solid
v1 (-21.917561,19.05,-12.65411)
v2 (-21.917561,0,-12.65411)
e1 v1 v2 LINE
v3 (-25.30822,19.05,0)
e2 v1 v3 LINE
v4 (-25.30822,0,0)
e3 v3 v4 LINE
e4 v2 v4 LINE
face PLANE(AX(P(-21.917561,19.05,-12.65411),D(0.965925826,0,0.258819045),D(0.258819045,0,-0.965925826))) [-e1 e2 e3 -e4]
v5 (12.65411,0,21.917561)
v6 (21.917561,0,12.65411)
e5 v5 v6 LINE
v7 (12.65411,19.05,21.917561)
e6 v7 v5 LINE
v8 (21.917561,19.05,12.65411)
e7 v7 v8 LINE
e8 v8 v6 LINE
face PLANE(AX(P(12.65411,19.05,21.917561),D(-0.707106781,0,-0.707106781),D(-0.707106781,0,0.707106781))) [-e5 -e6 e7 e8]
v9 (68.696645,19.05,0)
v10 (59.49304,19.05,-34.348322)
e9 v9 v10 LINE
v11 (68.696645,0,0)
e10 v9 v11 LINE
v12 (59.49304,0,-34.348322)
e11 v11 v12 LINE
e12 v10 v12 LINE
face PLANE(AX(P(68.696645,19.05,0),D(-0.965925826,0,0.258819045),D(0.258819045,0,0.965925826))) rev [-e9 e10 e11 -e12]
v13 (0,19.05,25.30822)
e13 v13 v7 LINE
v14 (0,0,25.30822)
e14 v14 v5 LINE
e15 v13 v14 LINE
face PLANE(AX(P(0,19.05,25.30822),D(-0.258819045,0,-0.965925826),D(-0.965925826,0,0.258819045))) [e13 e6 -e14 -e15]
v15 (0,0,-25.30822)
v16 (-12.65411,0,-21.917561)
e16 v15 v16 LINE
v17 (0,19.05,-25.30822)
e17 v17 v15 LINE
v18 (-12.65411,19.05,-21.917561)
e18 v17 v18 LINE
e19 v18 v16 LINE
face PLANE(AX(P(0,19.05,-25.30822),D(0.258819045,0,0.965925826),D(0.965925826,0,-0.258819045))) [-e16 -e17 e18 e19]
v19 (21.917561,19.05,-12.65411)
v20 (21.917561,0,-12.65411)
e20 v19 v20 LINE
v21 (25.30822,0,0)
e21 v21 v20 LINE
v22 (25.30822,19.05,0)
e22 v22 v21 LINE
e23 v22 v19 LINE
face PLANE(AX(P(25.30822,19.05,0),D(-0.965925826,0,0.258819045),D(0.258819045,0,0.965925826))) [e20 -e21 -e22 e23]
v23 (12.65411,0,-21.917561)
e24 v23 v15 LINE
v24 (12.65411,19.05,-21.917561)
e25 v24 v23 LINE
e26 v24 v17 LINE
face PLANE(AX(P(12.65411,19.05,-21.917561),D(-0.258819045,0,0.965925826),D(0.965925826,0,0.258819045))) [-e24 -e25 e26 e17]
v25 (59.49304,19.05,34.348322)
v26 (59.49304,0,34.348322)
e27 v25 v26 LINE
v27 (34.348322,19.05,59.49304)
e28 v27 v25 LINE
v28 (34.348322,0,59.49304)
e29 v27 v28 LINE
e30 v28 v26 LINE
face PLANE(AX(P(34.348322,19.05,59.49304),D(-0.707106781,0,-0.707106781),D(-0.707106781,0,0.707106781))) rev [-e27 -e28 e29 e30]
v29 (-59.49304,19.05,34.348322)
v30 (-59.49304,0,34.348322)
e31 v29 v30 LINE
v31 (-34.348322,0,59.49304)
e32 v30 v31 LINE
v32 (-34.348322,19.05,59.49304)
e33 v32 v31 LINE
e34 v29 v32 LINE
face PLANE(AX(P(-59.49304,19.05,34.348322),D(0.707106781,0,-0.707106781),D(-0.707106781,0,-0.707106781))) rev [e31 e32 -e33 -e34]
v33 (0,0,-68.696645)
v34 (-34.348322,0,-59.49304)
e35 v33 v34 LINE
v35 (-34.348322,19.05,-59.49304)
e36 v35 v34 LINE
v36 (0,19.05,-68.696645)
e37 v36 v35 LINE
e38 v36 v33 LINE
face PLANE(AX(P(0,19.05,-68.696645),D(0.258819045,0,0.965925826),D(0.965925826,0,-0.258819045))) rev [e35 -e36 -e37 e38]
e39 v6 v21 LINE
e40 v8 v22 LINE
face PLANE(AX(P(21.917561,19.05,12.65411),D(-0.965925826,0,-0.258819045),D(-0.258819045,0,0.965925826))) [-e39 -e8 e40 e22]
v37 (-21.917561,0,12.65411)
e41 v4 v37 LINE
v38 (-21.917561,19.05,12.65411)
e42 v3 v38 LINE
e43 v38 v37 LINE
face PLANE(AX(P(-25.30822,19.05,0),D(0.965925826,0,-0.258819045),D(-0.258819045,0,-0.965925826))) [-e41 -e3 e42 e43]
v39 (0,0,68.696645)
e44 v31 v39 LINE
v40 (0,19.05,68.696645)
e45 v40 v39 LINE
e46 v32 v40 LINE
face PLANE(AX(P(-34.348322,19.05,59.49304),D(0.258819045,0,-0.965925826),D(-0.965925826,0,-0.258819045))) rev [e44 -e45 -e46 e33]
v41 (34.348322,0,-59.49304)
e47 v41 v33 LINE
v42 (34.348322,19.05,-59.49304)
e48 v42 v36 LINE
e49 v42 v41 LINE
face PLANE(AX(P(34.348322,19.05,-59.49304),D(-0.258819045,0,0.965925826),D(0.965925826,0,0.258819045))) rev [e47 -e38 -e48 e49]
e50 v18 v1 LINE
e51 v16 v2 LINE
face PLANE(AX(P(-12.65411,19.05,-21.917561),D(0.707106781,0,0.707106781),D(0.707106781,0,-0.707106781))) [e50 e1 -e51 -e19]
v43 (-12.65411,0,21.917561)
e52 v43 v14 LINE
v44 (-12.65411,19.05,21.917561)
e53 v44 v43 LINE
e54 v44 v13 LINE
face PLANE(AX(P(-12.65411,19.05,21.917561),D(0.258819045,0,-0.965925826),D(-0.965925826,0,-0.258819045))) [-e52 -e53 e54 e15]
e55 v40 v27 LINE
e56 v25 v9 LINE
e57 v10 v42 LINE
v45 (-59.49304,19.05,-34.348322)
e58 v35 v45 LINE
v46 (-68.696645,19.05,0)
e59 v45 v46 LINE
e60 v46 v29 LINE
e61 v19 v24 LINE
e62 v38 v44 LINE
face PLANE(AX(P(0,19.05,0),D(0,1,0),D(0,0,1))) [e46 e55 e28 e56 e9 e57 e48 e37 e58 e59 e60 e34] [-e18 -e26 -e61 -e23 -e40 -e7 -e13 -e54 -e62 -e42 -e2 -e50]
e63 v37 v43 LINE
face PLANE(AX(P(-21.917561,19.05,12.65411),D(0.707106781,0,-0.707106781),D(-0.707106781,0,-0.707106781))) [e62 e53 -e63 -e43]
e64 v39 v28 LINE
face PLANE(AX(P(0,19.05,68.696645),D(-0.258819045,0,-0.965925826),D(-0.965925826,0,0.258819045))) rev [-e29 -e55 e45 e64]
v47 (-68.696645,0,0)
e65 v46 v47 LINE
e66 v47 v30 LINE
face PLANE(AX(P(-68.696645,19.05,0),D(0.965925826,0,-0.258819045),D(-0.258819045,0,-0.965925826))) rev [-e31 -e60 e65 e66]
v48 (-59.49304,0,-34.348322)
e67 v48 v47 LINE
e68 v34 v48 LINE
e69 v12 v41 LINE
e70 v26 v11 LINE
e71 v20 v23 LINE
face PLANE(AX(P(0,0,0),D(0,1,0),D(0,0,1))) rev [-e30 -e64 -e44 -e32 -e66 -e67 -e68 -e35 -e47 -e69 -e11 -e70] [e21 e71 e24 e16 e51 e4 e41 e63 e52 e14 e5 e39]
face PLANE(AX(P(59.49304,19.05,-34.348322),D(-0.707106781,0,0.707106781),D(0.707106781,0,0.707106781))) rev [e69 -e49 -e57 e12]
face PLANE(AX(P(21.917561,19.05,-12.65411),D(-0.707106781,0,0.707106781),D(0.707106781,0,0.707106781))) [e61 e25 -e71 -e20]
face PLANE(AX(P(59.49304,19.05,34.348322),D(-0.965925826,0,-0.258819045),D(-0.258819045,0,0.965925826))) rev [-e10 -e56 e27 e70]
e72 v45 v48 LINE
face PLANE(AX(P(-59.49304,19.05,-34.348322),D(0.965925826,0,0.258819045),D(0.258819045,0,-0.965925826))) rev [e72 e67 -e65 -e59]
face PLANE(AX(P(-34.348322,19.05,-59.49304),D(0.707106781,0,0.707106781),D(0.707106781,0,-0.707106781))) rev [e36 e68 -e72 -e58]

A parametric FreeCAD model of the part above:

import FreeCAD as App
import Part
import Sketcher

V = App.Vector
Q = App.Units.Quantity

doc = App.newDocument("Part")
body = doc.addObject("PartDesign::Body", "Body")

sketch1 = doc.addObject("Sketcher::SketchObject", "Sketch")
body.addObject(sketch1)
sketch1.AttachmentSupport = (doc.XZ_Plane, [""])
sketch1.MapMode = "FlatFace"
sketch1.addGeometry([
    Part.LineSegment(V(69, 0, 0), V(59, -34, 0)),
    Part.LineSegment(V(59, -34, 0), V(34, -59, 0)),
    Part.LineSegment(V(34, -59, 0), V(0, -69, 0)),
    Part.LineSegment(V(0, -69, 0), V(-34, -59, 0)),
    Part.LineSegment(V(-34, -59, 0), V(-59, -34, 0)),
    Part.LineSegment(V(-59, -34, 0), V(-69, 0, 0)),
    Part.LineSegment(V(-69, 0, 0), V(-59, 34, 0)),
    Part.LineSegment(V(-59, 34, 0), V(-34, 59, 0)),
    Part.LineSegment(V(-34, 59, 0), V(0, 69, 0)),
    Part.LineSegment(V(0, 69, 0), V(34, 59, 0)),
    Part.LineSegment(V(34, 59, 0), V(59, 34, 0)),
    Part.LineSegment(V(59, 34, 0), V(69, 0, 0)),
    Part.LineSegment(V(22, -13, 0), V(25, 0, 0)),
    Part.LineSegment(V(25, 0, 0), V(22, 13, 0)),
    Part.LineSegment(V(22, 13, 0), V(13, 22, 0)),
    Part.LineSegment(V(13, 22, 0), V(0, 25, 0)),
    Part.LineSegment(V(0, 25, 0), V(-13, 22, 0)),
    Part.LineSegment(V(-13, 22, 0), V(-22, 13, 0)),
    Part.LineSegment(V(-22, 13, 0), V(-25, 0, 0)),
    Part.LineSegment(V(-25, 0, 0), V(-22, -13, 0)),
    Part.LineSegment(V(-22, -13, 0), V(-13, -22, 0)),
    Part.LineSegment(V(-13, -22, 0), V(0, -25, 0)),
    Part.LineSegment(V(0, -25, 0), V(13, -22, 0)),
    Part.LineSegment(V(13, -22, 0), V(22, -13, 0)),
], False)
sketch1.addConstraint([
    Sketcher.Constraint("Coincident", 0, 2, 1, 1),
    Sketcher.Constraint("Coincident", 1, 2, 2, 1),
    Sketcher.Constraint("Coincident", 2, 2, 3, 1),
    Sketcher.Constraint("Coincident", 3, 2, 4, 1),
    Sketcher.Constraint("Coincident", 4, 2, 5, 1),
    Sketcher.Constraint("Coincident", 5, 2, 6, 1),
    Sketcher.Constraint("Coincident", 6, 2, 7, 1),
    Sketcher.Constraint("Coincident", 7, 2, 8, 1),
    Sketcher.Constraint("Coincident", 8, 2, 9, 1),
    Sketcher.Constraint("Coincident", 9, 2, 10, 1),
    Sketcher.Constraint("Coincident", 10, 2, 11, 1),
    Sketcher.Constraint("Coincident", 11, 2, 0, 1),
    Sketcher.Constraint("Coincident", 12, 2, 13, 1),
    Sketcher.Constraint("Coincident", 13, 2, 14, 1),
    Sketcher.Constraint("Coincident", 14, 2, 15, 1),
    Sketcher.Constraint("Coincident", 15, 2, 16, 1),
    Sketcher.Constraint("Coincident", 16, 2, 17, 1),
    Sketcher.Constraint("Coincident", 17, 2, 18, 1),
    Sketcher.Constraint("Coincident", 18, 2, 19, 1),
    Sketcher.Constraint("Coincident", 19, 2, 20, 1),
    Sketcher.Constraint("Coincident", 20, 2, 21, 1),
    Sketcher.Constraint("Coincident", 21, 2, 22, 1),
    Sketcher.Constraint("Coincident", 22, 2, 23, 1),
    Sketcher.Constraint("Coincident", 23, 2, 12, 1),
    Sketcher.Constraint("Symmetric", 0, 2, 6, 2, -1, 1),
    Sketcher.Constraint("Symmetric", 1, 2, 7, 2, -1, 1),
    Sketcher.Constraint("Symmetric", 2, 2, 8, 2, -1, 1),
    Sketcher.Constraint("Symmetric", 3, 2, 9, 2, -1, 1),
    Sketcher.Constraint("Symmetric", 4, 2, 10, 2, -1, 1),
    Sketcher.Constraint("Symmetric", 5, 2, 11, 2, -1, 1),
    Sketcher.Constraint("Symmetric", 12, 2, 18, 2, -1, 1),
    Sketcher.Constraint("Symmetric", 13, 2, 19, 2, -1, 1),
    Sketcher.Constraint("Symmetric", 14, 2, 20, 2, -1, 1),
    Sketcher.Constraint("Symmetric", 15, 2, 21, 2, -1, 1),
    Sketcher.Constraint("Symmetric", 16, 2, 22, 2, -1, 1),
    Sketcher.Constraint("Symmetric", 17, 2, 23, 2, -1, 1),
    Sketcher.Constraint("Symmetric", 1, 2, 3, 2, -2),
    Sketcher.Constraint("Symmetric", 0, 2, 4, 2, -2),
    Sketcher.Constraint("Symmetric", 14, 2, 16, 2, -2),
    Sketcher.Constraint("Symmetric", 13, 2, 17, 2, -2),
    Sketcher.Constraint("PointOnObject", 2, 2, -2),
    Sketcher.Constraint("PointOnObject", 5, 2, -1),
    Sketcher.Constraint("PointOnObject", 12, 2, -1),
    Sketcher.Constraint("PointOnObject", 15, 2, -2),
    Sketcher.Constraint("Perpendicular", 0, 3),
    Sketcher.Constraint("Perpendicular", 1, 4),
    Sketcher.Constraint("Perpendicular", 9, 12),
    Sketcher.Constraint("Parallel", 10, 14),
    Sketcher.Constraint("Perpendicular", 12, 15),
    Sketcher.Constraint("Equal", 0, 1),
    Sketcher.Constraint("Equal", 1, 2),
    Sketcher.Constraint("Equal", 13, 14),
    Sketcher.Constraint("Equal", 14, 15),
    Sketcher.Constraint("Angle", 0, Q("-105 deg")),
    Sketcher.Constraint("Distance", 0, Q("1.4 in")),
    Sketcher.Constraint("DistanceX", 13, 2, 9, 2, Q("0.4894 in")),
])
pad1 = doc.addObject("PartDesign::Pad", "Pad")
body.addObject(pad1)
pad1.Profile = sketch1
pad1.Length = Q("0.75 in")
pad1.Reversed = True

doc.recompute()
